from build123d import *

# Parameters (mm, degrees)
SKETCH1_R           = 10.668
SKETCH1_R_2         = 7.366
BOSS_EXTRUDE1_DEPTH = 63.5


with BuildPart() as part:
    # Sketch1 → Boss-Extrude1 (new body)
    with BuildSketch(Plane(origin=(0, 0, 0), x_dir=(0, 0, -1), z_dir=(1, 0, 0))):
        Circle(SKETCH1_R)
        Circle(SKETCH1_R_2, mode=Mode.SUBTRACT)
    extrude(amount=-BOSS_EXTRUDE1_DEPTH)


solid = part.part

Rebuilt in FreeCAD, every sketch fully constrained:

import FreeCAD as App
import Part
import Sketcher
from FreeCAD import Vector
Q = App.Units.Quantity

doc = App.newDocument("Part")
body = doc.addObject("PartDesign::Body", "Body")

# Sketch on YZ plane
sketch1 = doc.addObject("Sketcher::SketchObject", "Sketch")
body.addObject(sketch1)
sketch1.AttachmentSupport = (doc.YZ_Plane, [""])
sketch1.MapMode = "FlatFace"
sketch1.addGeometry([
    Part.Circle(Vector(0, 0, 0), Vector(0, 0, 1), 10.668),
    Part.Circle(Vector(0, 0, 0), Vector(0, 0, 1), 7.366),
], False)
sketch1.addConstraint([
    Sketcher.Constraint("Coincident", 0, 3, -1, 1),
    Sketcher.Constraint("Coincident", 1, 3, -1, 1),
    Sketcher.Constraint("Diameter", 0, Q("0.84 in")),
    Sketcher.Constraint("Diameter", 1, Q("0.58 in")),
])
pad1 = doc.addObject("PartDesign::Pad", "Pad")
body.addObject(pad1)
pad1.Profile = sketch1
pad1.Length = Q("2.5 in")
pad1.Reversed = True

doc.recompute()
